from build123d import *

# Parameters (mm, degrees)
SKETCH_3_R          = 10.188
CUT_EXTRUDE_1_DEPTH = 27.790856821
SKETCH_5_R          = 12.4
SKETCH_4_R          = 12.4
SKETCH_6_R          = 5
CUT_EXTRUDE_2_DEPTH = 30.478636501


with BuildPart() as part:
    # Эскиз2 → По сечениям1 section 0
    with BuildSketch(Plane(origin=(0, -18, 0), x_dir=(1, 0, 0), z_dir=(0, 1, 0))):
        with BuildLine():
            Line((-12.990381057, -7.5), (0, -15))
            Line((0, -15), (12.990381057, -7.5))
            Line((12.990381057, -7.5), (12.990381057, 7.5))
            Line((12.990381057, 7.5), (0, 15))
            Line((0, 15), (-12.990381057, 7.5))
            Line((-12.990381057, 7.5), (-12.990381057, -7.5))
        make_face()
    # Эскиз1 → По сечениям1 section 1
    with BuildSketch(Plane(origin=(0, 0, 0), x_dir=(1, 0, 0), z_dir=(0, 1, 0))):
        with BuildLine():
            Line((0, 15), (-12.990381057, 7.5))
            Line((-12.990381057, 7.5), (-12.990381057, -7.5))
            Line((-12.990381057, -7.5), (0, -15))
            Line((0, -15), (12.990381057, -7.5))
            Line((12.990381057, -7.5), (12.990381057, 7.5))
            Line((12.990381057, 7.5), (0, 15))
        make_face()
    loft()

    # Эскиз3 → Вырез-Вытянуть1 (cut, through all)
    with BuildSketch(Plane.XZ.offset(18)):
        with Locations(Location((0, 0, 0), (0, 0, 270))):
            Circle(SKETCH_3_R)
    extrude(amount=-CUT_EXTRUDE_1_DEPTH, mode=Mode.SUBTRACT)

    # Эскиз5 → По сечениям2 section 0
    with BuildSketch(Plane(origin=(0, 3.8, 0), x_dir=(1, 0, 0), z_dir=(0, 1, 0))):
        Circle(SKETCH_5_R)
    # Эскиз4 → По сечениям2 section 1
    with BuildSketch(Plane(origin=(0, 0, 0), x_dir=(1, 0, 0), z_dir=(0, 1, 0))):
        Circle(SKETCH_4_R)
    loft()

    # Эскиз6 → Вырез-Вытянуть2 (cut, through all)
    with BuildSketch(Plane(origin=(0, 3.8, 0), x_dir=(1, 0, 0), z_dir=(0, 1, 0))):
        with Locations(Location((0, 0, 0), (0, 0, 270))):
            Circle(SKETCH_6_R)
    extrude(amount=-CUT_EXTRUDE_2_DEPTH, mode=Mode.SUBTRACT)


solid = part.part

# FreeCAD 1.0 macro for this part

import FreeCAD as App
import Part
import Sketcher
from FreeCAD import Vector
Q = App.Units.Quantity

doc = App.newDocument("Part")
params = doc.addObject("Spreadsheet::Sheet", "Params")
for row, (alias, value) in enumerate([
    ("sketch1_height", "15 mm"),
    ("sketch1_length", "15 mm"),
    ("sketch2_height", "15 mm"),
    ("sketch2_length", "15 mm"),
    ("sketch4_diameter", "24.8 mm"),
    ("sketch5_diameter", "24.8 mm"),
    ("sketch6_diameter", "10 mm"),
], start=1):
    params.set(f"A{row}", alias)
    params.set(f"B{row}", "=" + value)
    params.setAlias(f"B{row}", alias)

body = doc.addObject("PartDesign::Body", "Body")

# Sketch on XZ plane
sketch1 = doc.addObject("Sketcher::SketchObject", "Sketch")
body.addObject(sketch1)
sketch1.AttachmentSupport = (doc.XZ_Plane, [""])
sketch1.MapMode = "FlatFace"
sketch1.AttachmentOffset = App.Placement(Vector(0, 0, 18), App.Rotation())
sketch1.addGeometry([
    Part.LineSegment(Vector(-12.990381, 7.5, 0), Vector(0, 15, 0)),  # 0
    Part.LineSegment(Vector(0, 15, 0), Vector(12.990381, 7.5, 0)),  # 1
    Part.LineSegment(Vector(12.990381, 7.5, 0), Vector(12.990381, -7.5, 0)),  # 2
    Part.LineSegment(Vector(12.990381, -7.5, 0), Vector(0, -15, 0)),  # 3
    Part.LineSegment(Vector(0, -15, 0), Vector(-12.990381, -7.5, 0)),  # 4
    Part.LineSegment(Vector(-12.990381, -7.5, 0), Vector(-12.990381, 7.5, 0)),  # 5
], False)
sketch1.addConstraint([
    Sketcher.Constraint("Coincident", 0, 2, 1, 1),
    Sketcher.Constraint("Coincident", 1, 2, 2, 1),
    Sketcher.Constraint("Coincident", 2, 2, 3, 1),
    Sketcher.Constraint("Coincident", 3, 2, 4, 1),
    Sketcher.Constraint("Coincident", 4, 2, 5, 1),
    Sketcher.Constraint("Coincident", 5, 2, 0, 1),
    Sketcher.Constraint("Vertical", 2),
    Sketcher.Constraint("Vertical", 5),
    Sketcher.Constraint("Symmetric", 0, 2, 3, 2, -1, 1),
    Sketcher.Constraint("Symmetric", 1, 2, 4, 2, -1, 1),
    Sketcher.Constraint("PointOnObject", 0, 2, -2),
    Sketcher.Constraint("Parallel", 0, 3),
    Sketcher.Constraint("Horizontal", 2, 2, 4, 2),
    Sketcher.Constraint("DistanceY", 2, 2, 2, 1, 15.0),
    Sketcher.Constraint("Angle", 0, Q("30 deg")),
    Sketcher.Constraint("Distance", 0, 15.0),
])
sketch1.setExpression("Constraints[13]", "Params.sketch1_height")
sketch1.setExpression("Constraints[15]", "Params.sketch1_length")

# Sketch on XZ plane
sketch2 = doc.addObject("Sketcher::SketchObject", "Sketch001")
body.addObject(sketch2)
sketch2.AttachmentSupport = (doc.XZ_Plane, [""])
sketch2.MapMode = "FlatFace"
sketch2.addGeometry([
    Part.LineSegment(Vector(0, -15, 0), Vector(-12.990381, -7.5, 0)),  # 0
    Part.LineSegment(Vector(-12.990381, -7.5, 0), Vector(-12.990381, 7.5, 0)),  # 1
    Part.LineSegment(Vector(-12.990381, 7.5, 0), Vector(0, 15, 0)),  # 2
    Part.LineSegment(Vector(0, 15, 0), Vector(12.990381, 7.5, 0)),  # 3
    Part.LineSegment(Vector(12.990381, 7.5, 0), Vector(12.990381, -7.5, 0)),  # 4
    Part.LineSegment(Vector(12.990381, -7.5, 0), Vector(0, -15, 0)),  # 5
], False)
sketch2.addConstraint([
    Sketcher.Constraint("Coincident", 0, 2, 1, 1),
    Sketcher.Constraint("Coincident", 1, 2, 2, 1),
    Sketcher.Constraint("Coincident", 2, 2, 3, 1),
    Sketcher.Constraint("Coincident", 3, 2, 4, 1),
    Sketcher.Constraint("Coincident", 4, 2, 5, 1),
    Sketcher.Constraint("Coincident", 5, 2, 0, 1),
    Sketcher.Constraint("Vertical", 1),
    Sketcher.Constraint("Vertical", 4),
    Sketcher.Constraint("Symmetric", 0, 2, 3, 2, -1, 1),
    Sketcher.Constraint("Symmetric", 2, 2, 5, 2, -1, 1),
    Sketcher.Constraint("PointOnObject", 2, 2, -2),
    Sketcher.Constraint("Parallel", 2, 5),
    Sketcher.Constraint("Horizontal", 1, 2, 3, 2),
    Sketcher.Constraint("DistanceY", 1, 1, 1, 2, 15.0),
    Sketcher.Constraint("Angle", 0, Q("150 deg")),
    Sketcher.Constraint("Distance", 0, 15.0),
])
sketch2.setExpression("Constraints[13]", "Params.sketch2_height")
sketch2.setExpression("Constraints[15]", "Params.sketch2_length")

additiveloft = doc.addObject("PartDesign::AdditiveLoft", "AdditiveLoft")
body.addObject(additiveloft)
additiveloft.Profile = sketch1
additiveloft.Sections = [sketch2]

# Sketch on XZ plane
sketch3 = doc.addObject("Sketcher::SketchObject", "Sketch002")
body.addObject(sketch3)
sketch3.AttachmentSupport = (doc.XZ_Plane, [""])
sketch3.MapMode = "FlatFace"
sketch3.AttachmentOffset = App.Placement(Vector(0, 0, 18), App.Rotation())
sketch3.addGeometry(Part.Circle(Vector(0, 0, 0), Vector(0, 0, 1), 10.188), False)
sketch3.addConstraint([
    Sketcher.Constraint("Coincident", 0, 3, -1, 1),
    Sketcher.Constraint("Diameter", 0, 20.376),
])
pocket1 = doc.addObject("PartDesign::Pocket", "Pocket")
body.addObject(pocket1)
pocket1.Profile = sketch3
pocket1.Type = "ThroughAll"

# Sketch on XZ plane
sketch4 = doc.addObject("Sketcher::SketchObject", "Sketch003")
body.addObject(sketch4)
sketch4.AttachmentSupport = (doc.XZ_Plane, [""])
sketch4.MapMode = "FlatFace"
sketch4.AttachmentOffset = App.Placement(Vector(0, 0, -3.8), App.Rotation())
sketch4.addGeometry(Part.Circle(Vector(0, 0, 0), Vector(0, 0, 1), 12.4), False)
sketch4.addConstraint([
    Sketcher.Constraint("Coincident", 0, 3, -1, 1),
    Sketcher.Constraint("Diameter", 0, 24.8),
])
sketch4.setExpression("Constraints[1]", "Params.sketch4_diameter")

# Sketch on XZ plane
sketch5 = doc.addObject("Sketcher::SketchObject", "Sketch004")
body.addObject(sketch5)
sketch5.AttachmentSupport = (doc.XZ_Plane, [""])
sketch5.MapMode = "FlatFace"
sketch5.addGeometry(Part.Circle(Vector(0, 0, 0), Vector(0, 0, 1), 12.4), False)
sketch5.addConstraint([
    Sketcher.Constraint("Coincident", 0, 3, -1, 1),
    Sketcher.Constraint("Diameter", 0, 24.8),
])
sketch5.setExpression("Constraints[1]", "Params.sketch5_diameter")

additiveloft2 = doc.addObject("PartDesign::AdditiveLoft", "AdditiveLoft001")
body.addObject(additiveloft2)
additiveloft2.Profile = sketch4
additiveloft2.Sections = [sketch5]

# Sketch on XZ plane
sketch6 = doc.addObject("Sketcher::SketchObject", "Sketch005")
body.addObject(sketch6)
sketch6.AttachmentSupport = (doc.XZ_Plane, [""])
sketch6.MapMode = "FlatFace"
sketch6.AttachmentOffset = App.Placement(Vector(0, 0, -3.8), App.Rotation())
sketch6.addGeometry(Part.Circle(Vector(0, 0, 0), Vector(0, 0, 1), 5), False)
sketch6.addConstraint([
    Sketcher.Constraint("Coincident", 0, 3, -1, 1),
    Sketcher.Constraint("Diameter", 0, 10.0),
])
sketch6.setExpression("Constraints[1]", "Params.sketch6_diameter")
pocket2 = doc.addObject("PartDesign::Pocket", "Pocket001")
body.addObject(pocket2)
pocket2.Profile = sketch6
pocket2.Type = "ThroughAll"
pocket2.Reversed = True

doc.recompute()
